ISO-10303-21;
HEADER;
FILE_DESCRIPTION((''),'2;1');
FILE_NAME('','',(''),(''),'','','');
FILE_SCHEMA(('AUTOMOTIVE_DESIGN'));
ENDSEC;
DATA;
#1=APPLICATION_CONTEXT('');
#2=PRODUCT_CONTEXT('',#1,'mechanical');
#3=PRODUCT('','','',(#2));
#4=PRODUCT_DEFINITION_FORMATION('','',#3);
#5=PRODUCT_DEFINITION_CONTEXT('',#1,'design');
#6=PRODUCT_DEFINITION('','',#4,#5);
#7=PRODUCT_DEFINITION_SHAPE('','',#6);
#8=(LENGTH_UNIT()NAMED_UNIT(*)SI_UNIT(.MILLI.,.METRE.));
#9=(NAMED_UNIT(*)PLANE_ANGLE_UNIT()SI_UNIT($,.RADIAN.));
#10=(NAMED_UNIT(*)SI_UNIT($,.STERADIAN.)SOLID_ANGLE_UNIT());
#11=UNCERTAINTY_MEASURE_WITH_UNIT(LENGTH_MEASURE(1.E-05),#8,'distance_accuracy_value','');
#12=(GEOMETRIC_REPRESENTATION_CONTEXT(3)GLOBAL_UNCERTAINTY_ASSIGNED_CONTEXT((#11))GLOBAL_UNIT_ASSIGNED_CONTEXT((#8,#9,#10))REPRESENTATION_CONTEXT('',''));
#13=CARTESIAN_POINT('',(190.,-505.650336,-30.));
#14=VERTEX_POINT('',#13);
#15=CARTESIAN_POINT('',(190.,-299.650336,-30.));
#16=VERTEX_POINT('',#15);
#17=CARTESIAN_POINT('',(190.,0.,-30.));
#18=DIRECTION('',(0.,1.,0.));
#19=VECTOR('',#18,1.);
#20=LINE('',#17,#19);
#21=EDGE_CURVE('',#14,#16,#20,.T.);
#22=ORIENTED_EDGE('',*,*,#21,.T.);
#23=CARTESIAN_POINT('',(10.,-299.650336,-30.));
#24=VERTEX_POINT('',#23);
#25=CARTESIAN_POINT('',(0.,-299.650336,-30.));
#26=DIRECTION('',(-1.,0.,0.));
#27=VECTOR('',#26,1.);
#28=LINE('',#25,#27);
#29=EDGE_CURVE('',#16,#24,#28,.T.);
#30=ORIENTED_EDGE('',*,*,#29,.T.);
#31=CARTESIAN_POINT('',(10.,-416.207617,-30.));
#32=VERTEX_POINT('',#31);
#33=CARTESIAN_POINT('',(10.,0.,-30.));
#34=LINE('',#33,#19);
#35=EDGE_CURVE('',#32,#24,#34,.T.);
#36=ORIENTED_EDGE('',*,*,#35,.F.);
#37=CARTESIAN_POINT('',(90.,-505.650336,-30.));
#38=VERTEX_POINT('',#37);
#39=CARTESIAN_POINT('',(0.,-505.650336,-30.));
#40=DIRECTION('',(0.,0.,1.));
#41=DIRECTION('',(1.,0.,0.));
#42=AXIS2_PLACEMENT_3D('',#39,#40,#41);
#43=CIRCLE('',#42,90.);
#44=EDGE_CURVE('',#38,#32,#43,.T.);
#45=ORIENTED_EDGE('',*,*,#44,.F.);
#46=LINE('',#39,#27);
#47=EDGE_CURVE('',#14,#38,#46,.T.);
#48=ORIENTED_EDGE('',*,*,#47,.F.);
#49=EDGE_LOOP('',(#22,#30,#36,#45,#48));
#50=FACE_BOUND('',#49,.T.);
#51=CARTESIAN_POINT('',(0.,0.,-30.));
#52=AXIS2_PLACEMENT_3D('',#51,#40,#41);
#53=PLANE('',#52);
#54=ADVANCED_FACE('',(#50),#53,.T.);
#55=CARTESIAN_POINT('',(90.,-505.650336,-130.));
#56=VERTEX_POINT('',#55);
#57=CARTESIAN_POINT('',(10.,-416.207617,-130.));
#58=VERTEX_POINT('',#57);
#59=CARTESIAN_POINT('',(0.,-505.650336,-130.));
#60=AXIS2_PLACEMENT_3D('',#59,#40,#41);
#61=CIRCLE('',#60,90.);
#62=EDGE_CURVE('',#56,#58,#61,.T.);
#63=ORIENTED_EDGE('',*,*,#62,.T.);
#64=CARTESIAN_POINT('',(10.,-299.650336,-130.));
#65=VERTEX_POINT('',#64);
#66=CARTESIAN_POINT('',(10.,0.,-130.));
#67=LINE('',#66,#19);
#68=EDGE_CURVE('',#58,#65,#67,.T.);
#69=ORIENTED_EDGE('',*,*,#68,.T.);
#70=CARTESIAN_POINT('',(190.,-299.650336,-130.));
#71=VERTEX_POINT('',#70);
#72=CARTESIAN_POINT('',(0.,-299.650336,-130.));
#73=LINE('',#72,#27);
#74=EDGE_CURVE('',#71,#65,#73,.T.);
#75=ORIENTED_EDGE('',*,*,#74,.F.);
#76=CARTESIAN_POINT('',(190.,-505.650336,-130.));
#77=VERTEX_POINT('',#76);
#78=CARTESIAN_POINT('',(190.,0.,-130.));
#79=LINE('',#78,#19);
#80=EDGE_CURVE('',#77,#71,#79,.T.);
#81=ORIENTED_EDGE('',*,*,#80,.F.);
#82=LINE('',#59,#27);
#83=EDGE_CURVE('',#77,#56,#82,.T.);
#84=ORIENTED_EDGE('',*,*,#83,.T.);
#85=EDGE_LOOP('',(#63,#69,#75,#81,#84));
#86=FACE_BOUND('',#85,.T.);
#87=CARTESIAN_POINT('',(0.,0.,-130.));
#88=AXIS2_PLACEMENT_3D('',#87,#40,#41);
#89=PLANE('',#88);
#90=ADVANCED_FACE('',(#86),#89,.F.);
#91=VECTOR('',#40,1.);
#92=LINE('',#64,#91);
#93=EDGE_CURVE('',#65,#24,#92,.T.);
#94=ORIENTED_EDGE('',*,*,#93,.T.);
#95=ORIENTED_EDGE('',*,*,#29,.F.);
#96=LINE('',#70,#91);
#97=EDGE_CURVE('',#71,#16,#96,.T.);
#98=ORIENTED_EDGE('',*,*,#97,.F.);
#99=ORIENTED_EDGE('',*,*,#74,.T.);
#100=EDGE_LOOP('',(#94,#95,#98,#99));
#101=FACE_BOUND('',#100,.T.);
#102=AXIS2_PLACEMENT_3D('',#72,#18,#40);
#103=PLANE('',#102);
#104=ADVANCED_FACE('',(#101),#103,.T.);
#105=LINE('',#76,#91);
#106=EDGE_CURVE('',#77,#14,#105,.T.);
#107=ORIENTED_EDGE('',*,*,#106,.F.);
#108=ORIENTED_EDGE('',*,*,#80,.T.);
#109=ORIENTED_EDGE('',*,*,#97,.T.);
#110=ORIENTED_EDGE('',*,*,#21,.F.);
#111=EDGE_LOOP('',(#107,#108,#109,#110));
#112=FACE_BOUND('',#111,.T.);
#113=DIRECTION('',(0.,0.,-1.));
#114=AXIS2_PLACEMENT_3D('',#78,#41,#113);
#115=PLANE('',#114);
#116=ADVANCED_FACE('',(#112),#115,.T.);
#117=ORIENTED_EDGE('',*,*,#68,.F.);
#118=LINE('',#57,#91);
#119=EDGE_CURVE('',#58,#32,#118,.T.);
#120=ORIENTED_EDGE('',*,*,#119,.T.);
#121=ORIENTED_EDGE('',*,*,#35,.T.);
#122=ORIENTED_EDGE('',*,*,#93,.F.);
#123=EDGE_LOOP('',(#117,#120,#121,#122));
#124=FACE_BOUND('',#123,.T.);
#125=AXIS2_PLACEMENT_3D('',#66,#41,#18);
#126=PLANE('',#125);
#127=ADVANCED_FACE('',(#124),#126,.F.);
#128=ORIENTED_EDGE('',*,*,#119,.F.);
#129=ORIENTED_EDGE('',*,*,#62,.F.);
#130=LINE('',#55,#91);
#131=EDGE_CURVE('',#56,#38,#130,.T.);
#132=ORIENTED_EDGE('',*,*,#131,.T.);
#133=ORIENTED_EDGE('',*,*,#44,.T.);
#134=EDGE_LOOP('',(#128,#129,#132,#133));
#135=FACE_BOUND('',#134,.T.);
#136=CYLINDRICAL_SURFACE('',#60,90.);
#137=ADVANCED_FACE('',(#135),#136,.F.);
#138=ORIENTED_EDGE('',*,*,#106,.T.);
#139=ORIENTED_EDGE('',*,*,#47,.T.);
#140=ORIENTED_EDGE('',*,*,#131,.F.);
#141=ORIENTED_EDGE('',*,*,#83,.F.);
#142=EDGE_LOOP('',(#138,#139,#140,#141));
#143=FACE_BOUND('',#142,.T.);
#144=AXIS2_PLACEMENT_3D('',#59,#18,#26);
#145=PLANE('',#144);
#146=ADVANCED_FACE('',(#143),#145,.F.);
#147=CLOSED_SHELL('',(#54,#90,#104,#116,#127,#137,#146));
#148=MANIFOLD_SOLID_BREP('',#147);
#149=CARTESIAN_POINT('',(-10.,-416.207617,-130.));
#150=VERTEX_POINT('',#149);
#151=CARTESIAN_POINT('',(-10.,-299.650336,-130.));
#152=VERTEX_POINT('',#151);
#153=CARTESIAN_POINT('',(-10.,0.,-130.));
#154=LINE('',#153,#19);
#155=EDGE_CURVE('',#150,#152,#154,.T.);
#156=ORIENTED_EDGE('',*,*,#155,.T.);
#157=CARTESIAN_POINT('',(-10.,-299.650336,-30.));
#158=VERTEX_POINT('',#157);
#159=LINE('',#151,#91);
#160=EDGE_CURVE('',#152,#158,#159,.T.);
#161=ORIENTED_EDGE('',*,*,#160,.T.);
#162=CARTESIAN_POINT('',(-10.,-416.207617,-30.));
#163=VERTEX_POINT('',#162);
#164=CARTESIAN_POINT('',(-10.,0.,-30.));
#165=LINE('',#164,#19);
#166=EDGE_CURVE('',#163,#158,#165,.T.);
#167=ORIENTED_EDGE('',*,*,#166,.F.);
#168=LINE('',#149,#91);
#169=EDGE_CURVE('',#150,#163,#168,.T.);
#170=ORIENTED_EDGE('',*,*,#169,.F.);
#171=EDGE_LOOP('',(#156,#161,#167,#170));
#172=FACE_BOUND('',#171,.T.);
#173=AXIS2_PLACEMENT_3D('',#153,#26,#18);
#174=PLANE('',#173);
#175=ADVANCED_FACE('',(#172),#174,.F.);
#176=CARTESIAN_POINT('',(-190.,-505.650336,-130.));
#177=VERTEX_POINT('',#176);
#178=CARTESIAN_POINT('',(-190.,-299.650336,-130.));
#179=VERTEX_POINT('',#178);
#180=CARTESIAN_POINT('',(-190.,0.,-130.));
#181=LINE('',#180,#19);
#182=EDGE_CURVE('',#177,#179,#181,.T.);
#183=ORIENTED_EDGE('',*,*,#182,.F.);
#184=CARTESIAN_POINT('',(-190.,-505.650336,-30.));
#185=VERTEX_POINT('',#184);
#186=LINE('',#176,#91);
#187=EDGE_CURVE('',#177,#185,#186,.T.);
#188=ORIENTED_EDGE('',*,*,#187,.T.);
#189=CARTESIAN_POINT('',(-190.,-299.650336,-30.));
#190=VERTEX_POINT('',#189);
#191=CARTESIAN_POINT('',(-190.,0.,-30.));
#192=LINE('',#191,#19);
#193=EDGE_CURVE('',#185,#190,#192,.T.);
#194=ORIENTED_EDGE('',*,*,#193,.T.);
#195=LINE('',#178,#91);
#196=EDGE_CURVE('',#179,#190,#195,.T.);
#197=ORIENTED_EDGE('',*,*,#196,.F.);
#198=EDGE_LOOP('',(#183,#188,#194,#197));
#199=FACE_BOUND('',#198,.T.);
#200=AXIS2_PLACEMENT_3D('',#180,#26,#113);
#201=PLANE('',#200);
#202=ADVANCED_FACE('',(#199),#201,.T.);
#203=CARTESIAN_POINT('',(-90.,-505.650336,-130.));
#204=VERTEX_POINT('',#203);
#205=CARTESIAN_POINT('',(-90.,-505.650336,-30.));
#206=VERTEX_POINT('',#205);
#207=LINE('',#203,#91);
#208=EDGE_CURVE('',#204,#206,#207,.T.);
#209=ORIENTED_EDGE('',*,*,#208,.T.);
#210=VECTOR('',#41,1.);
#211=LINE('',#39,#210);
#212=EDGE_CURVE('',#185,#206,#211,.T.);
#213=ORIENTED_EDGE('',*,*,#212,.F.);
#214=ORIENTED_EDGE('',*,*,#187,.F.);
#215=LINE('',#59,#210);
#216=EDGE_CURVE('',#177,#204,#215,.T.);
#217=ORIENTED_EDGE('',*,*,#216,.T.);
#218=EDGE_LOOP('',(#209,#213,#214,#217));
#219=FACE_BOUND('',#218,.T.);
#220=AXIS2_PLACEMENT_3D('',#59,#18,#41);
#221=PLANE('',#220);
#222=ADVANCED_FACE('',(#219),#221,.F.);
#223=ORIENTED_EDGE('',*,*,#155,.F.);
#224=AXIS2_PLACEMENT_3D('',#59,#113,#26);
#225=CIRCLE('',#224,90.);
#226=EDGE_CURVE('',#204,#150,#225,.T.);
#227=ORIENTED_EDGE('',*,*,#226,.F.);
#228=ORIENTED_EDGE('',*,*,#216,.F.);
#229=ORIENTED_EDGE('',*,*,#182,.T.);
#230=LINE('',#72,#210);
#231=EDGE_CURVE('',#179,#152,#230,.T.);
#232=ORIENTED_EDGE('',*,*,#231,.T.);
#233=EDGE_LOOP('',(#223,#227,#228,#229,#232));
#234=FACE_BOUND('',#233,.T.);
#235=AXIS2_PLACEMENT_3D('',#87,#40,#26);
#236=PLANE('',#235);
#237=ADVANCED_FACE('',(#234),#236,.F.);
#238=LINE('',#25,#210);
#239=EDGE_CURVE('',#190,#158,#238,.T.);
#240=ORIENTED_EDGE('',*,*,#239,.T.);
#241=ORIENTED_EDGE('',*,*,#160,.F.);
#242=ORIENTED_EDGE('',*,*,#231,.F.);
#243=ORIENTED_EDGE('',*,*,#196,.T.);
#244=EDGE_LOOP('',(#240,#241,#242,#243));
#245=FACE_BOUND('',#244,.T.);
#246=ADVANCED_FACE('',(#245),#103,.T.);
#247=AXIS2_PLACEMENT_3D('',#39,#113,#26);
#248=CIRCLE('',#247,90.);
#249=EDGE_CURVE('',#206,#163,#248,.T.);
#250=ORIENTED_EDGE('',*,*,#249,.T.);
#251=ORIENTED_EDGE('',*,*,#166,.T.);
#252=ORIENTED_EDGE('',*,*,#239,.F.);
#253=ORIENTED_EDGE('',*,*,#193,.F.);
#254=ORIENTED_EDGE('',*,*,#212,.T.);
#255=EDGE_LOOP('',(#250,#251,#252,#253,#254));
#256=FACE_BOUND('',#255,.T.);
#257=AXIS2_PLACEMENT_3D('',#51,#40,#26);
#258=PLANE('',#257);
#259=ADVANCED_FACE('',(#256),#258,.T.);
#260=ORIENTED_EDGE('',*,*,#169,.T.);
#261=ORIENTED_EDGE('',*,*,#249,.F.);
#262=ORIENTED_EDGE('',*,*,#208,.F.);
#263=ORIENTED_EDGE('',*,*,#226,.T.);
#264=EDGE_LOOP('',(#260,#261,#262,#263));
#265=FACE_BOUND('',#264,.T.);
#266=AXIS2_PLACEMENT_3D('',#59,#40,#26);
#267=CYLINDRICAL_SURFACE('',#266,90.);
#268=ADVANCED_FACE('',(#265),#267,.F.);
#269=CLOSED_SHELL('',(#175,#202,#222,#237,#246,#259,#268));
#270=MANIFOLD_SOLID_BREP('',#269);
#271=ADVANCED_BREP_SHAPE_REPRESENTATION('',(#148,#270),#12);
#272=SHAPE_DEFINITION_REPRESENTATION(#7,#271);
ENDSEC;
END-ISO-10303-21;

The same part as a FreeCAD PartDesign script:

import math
import FreeCAD as App
import Part
import Sketcher
from FreeCAD import Vector

doc = App.newDocument("Part")
body = doc.addObject("PartDesign::Body", "Body")

# Sketch on XY plane
sketch1 = doc.addObject("Sketcher::SketchObject", "Sketch")
body.addObject(sketch1)
sketch1.AttachmentSupport = (doc.XY_Plane, [""])
sketch1.MapMode = "FlatFace"
sketch1.AttachmentOffset = App.Placement(Vector(0, 0, -30), App.Rotation())
sketch1.addGeometry(Part.LineSegment(Vector(90, -505.650336, 0), Vector(190, -505.650336, 0)), False)
sketch1.addGeometry(Part.LineSegment(Vector(190, -505.650336, 0), Vector(190, -299.650336, 0)), False)
sketch1.addGeometry(Part.LineSegment(Vector(190, -299.650336, 0), Vector(10, -299.650336, 0)), False)
sketch1.addGeometry(Part.LineSegment(Vector(10, -299.650336, 0), Vector(10, -416.207617, 0)), False)
sketch1.addGeometry(Part.ArcOfCircle(Part.Circle(Vector(0, -505.650336, 0), Vector(0, 0, 1), 90), math.radians(0), math.radians(83.62063)), False)
sketch1.addConstraint(Sketcher.Constraint("Coincident", 0, 2, 1, 1))
sketch1.addConstraint(Sketcher.Constraint("Coincident", 1, 2, 2, 1))
sketch1.addConstraint(Sketcher.Constraint("Coincident", 2, 2, 3, 1))
sketch1.addConstraint(Sketcher.Constraint("Coincident", 3, 2, 4, 2))
sketch1.addConstraint(Sketcher.Constraint("Coincident", 4, 1, 0, 1))
sketch1.addConstraint(Sketcher.Constraint("Horizontal", 0))
sketch1.addConstraint(Sketcher.Constraint("Vertical", 1))
sketch1.addConstraint(Sketcher.Constraint("Horizontal", 2))
sketch1.addConstraint(Sketcher.Constraint("Vertical", 3))
sketch1.addConstraint(Sketcher.Constraint("PointOnObject", 4, 3, -2))
sketch1.addConstraint(Sketcher.Constraint("Horizontal", 4, 3, 0, 2))
sketch1.addConstraint(Sketcher.Constraint("Radius", 4, 90.0))
sketch1.addConstraint(Sketcher.Constraint("DistanceX", 0, 1, 0, 2, 100.0))
sketch1.addConstraint(Sketcher.Constraint("DistanceX", 2, 2, 2, 1, 180.0))
sketch1.addConstraint(Sketcher.Constraint("DistanceY", 1, 1, 1, 2, 206.0))
sketch1.addConstraint(Sketcher.Constraint("DistanceY", 4, 3, -1, 1, 505.650336))
pad1 = doc.addObject("PartDesign::Pad", "Pad")
body.addObject(pad1)
pad1.Profile = sketch1
pad1.Length = 100
pad1.Reversed = True
body2 = doc.addObject("PartDesign::Body", "Body001")
doc.recompute()

mirroring = doc.addObject("Part::Mirroring", "Mirroring")
mirroring.Source = body
mirroring.Base = Vector(0, 0, 0)
mirroring.Normal = Vector(1, 0, 0)
body2.BaseFeature = mirroring
doc.recompute()
mirroring.Visibility = False

doc.recompute()
